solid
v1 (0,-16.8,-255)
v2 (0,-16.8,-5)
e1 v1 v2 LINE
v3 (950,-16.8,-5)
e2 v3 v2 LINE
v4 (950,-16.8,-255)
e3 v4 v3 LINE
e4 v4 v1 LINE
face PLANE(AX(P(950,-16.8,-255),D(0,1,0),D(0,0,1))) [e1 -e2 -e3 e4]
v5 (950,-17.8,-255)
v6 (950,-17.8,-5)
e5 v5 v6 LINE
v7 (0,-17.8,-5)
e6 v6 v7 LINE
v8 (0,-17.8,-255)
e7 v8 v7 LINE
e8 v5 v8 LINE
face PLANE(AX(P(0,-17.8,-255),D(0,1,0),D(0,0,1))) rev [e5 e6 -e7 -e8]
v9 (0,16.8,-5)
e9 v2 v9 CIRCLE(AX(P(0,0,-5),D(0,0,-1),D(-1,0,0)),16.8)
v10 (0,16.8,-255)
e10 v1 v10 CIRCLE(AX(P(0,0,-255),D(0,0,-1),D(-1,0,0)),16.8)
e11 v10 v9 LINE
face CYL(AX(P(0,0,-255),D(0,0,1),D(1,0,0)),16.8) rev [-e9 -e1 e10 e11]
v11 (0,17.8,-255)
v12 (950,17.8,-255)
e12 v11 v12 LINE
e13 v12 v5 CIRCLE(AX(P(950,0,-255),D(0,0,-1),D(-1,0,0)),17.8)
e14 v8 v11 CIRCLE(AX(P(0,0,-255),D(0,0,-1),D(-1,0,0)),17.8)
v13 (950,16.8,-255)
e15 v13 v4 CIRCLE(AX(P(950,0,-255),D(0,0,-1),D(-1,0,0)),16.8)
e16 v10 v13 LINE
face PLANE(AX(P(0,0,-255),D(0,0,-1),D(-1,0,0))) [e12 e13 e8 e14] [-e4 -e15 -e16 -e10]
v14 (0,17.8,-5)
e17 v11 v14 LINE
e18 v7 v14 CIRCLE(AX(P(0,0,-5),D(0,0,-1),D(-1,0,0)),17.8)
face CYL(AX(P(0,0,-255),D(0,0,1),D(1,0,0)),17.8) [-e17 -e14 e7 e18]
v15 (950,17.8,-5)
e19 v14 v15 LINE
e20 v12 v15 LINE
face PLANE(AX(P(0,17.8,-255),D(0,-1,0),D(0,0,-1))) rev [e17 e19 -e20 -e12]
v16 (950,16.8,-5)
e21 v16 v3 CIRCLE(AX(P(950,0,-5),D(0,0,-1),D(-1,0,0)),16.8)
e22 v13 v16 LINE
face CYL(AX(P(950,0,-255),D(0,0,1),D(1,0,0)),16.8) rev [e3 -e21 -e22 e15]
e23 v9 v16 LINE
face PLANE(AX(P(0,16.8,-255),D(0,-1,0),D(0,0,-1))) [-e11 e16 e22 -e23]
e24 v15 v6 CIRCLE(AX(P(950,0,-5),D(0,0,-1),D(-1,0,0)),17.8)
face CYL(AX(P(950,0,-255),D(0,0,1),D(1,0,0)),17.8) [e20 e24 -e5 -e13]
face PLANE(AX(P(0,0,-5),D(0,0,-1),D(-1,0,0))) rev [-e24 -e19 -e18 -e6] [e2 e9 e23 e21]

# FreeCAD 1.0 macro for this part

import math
import FreeCAD as App
import Part
import Sketcher
from FreeCAD import Vector
Q = App.Units.Quantity

doc = App.newDocument("Part")
body = doc.addObject("PartDesign::Body", "Body")

sketch1 = body.newObject("Sketcher::SketchObject", "Sketch")
sketch1.AttachmentSupport = (doc.getObject("XY_Plane"), [""])
sketch1.MapMode = "FlatFace"
sketch1.AttachmentOffset = App.Placement(Vector(0, 0, -5), App.Rotation())
sketch1.addGeometry([
    Part.LineSegment(Vector(0, -18, 0), Vector(950, -18, 0)),
    Part.ArcOfCircle(Part.Circle(Vector(950, 0, 0), Vector(0, 0, 1), 18), math.radians(-90), math.radians(90)),
    Part.LineSegment(Vector(950, 18, 0), Vector(0, 18, 0)),
    Part.ArcOfCircle(Part.Circle(Vector(0, 0, 0), Vector(0, 0, 1), 18), math.radians(90), math.radians(270)),
    Part.LineSegment(Vector(950, -17, 0), Vector(0, -17, 0)),
    Part.ArcOfCircle(Part.Circle(Vector(0, 0, 0), Vector(0, 0, 1), 17), math.radians(90), math.radians(270)),
    Part.LineSegment(Vector(0, 17, 0), Vector(950, 17, 0)),
    Part.ArcOfCircle(Part.Circle(Vector(950, 0, 0), Vector(0, 0, 1), 17), math.radians(-90), math.radians(90)),
], False)
sketch1.addConstraint([
    Sketcher.Constraint("Tangent", 0, 2, 1, 1),
    Sketcher.Constraint("Tangent", 1, 2, 2, 1),
    Sketcher.Constraint("Tangent", 2, 2, 3, 1),
    Sketcher.Constraint("Tangent", 3, 2, 0, 1),
    Sketcher.Constraint("Tangent", 4, 2, 5, 2),
    Sketcher.Constraint("Tangent", 5, 1, 6, 1),
    Sketcher.Constraint("Tangent", 6, 2, 7, 2),
    Sketcher.Constraint("Tangent", 7, 1, 4, 1),
    Sketcher.Constraint("Horizontal", 0),
    Sketcher.Constraint("Horizontal", 2),
    Sketcher.Constraint("Horizontal", 4),
    Sketcher.Constraint("Horizontal", 6),
    Sketcher.Constraint("Coincident", 3, 3, -1, 1),
    Sketcher.Constraint("Coincident", 5, 3, -1, 1),
    Sketcher.Constraint("Vertical", 7, 3, 0, 2),
    Sketcher.Constraint("Radius", 1, Q("17.8 mm")),
    Sketcher.Constraint("Radius", 5, Q("16.8 mm")),
    Sketcher.Constraint("DistanceX", 0, 1, 0, 2, Q("950 mm")),
])
pad1 = body.newObject("PartDesign::Pad", "Pad")
pad1.Profile = sketch1
pad1.Length = 250
pad1.Reversed = True

doc.recompute()
